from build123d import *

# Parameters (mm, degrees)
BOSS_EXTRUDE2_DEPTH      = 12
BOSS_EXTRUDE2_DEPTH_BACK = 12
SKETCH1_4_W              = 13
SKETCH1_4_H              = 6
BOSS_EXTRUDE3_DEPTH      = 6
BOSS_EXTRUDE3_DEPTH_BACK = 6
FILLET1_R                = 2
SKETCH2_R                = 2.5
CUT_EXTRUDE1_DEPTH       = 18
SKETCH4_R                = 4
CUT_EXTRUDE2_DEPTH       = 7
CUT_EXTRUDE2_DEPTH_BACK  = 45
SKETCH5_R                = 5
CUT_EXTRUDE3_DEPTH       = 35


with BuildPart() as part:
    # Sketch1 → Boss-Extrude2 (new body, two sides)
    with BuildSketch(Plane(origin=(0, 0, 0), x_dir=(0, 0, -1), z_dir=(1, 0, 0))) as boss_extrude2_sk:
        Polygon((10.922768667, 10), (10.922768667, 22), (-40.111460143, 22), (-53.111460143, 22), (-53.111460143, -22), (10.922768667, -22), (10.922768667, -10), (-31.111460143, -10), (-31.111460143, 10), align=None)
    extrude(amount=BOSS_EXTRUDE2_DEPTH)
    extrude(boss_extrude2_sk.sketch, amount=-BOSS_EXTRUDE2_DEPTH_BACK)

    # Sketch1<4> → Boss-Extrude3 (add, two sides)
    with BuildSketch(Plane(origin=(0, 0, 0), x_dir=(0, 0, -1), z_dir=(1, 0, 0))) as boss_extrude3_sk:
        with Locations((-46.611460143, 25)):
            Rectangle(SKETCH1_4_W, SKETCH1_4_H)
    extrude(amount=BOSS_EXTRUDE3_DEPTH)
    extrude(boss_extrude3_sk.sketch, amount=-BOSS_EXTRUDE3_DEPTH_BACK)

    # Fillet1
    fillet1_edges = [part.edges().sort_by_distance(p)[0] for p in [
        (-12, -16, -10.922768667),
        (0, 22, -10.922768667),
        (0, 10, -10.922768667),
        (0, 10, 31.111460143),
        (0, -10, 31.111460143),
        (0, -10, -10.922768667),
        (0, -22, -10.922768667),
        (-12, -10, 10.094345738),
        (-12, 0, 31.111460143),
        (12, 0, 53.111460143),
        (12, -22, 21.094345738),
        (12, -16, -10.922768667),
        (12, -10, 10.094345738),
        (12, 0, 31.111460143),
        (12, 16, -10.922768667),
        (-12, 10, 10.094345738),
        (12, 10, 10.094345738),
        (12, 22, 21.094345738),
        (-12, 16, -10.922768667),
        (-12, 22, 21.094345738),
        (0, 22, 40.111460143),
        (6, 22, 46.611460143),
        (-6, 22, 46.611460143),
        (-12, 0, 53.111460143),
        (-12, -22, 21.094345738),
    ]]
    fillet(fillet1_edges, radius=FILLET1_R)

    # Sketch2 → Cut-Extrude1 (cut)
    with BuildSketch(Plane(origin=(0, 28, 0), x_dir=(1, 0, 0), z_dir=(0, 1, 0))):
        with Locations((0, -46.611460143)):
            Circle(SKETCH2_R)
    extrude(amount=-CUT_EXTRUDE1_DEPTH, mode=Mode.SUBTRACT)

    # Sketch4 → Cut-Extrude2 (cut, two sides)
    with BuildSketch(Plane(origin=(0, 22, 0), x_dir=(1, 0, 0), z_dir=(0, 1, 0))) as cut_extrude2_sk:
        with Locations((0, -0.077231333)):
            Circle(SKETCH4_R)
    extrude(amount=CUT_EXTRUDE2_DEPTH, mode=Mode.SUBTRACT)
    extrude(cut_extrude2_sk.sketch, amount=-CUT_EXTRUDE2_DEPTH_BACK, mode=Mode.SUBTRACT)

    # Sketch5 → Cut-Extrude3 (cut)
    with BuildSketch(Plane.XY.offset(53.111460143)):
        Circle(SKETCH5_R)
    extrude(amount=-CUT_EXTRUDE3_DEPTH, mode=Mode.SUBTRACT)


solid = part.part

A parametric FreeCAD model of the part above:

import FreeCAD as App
import Part
import Sketcher
from FreeCAD import Vector


def edges_at(feature, points):
    """Names of the edges that pass closest to the given points."""
    edges = feature.Shape.Edges
    near = lambda p: min(range(len(edges)), key=lambda i: edges[i].distToShape(Part.Vertex(*p))[0])
    return sorted({f"Edge{near(p) + 1}" for p in points})

doc = App.newDocument("Part")
body = doc.addObject("PartDesign::Body", "Body")

# Sketch on YZ plane
sketch1 = body.newObject("Sketcher::SketchObject", "Sketch")
sketch1.AttachmentSupport = (doc.getObject("YZ_Plane"), [""])
sketch1.MapMode = "FlatFace"
sketch1.addGeometry([
    Part.LineSegment(Vector(10, -11, 0), Vector(22, -11, 0)),  # 0
    Part.LineSegment(Vector(22, -11, 0), Vector(22, 53, 0)),  # 1
    Part.LineSegment(Vector(22, 53, 0), Vector(-22, 53, 0)),  # 2
    Part.LineSegment(Vector(-22, 53, 0), Vector(-22, -11, 0)),  # 3
    Part.LineSegment(Vector(-22, -11, 0), Vector(-10, -11, 0)),  # 4
    Part.LineSegment(Vector(-10, -11, 0), Vector(-10, 31, 0)),  # 5
    Part.LineSegment(Vector(-10, 31, 0), Vector(10, 31, 0)),  # 6
    Part.LineSegment(Vector(10, 31, 0), Vector(10, -11, 0)),  # 7
], False)
sketch1.addConstraint([
    Sketcher.Constraint("Coincident", 0, 2, 1, 1),
    Sketcher.Constraint("Coincident", 1, 2, 2, 1),
    Sketcher.Constraint("Coincident", 2, 2, 3, 1),
    Sketcher.Constraint("Coincident", 3, 2, 4, 1),
    Sketcher.Constraint("Coincident", 4, 2, 5, 1),
    Sketcher.Constraint("Coincident", 5, 2, 6, 1),
    Sketcher.Constraint("Coincident", 6, 2, 7, 1),
    Sketcher.Constraint("Coincident", 7, 2, 0, 1),
    Sketcher.Constraint("Horizontal", 0),
    Sketcher.Constraint("Vertical", 1),
    Sketcher.Constraint("Horizontal", 2),
    Sketcher.Constraint("Vertical", 3),
    Sketcher.Constraint("Horizontal", 4),
    Sketcher.Constraint("Vertical", 5),
    Sketcher.Constraint("Horizontal", 6),
    Sketcher.Constraint("Vertical", 7),
    Sketcher.Constraint("Symmetric", 0, 2, 3, 2, -2),
    Sketcher.Constraint("Equal", 0, 4),
    Sketcher.Constraint("DistanceX", 0, 1, 0, 2, 12.0),
    Sketcher.Constraint("DistanceX", 2, 2, 2, 1, 44.0),
    Sketcher.Constraint("DistanceY", 5, 2, 2, 2, 22.0),
    Sketcher.Constraint("DistanceY", 1, 1, 1, 2, 64.034229),
    Sketcher.Constraint("DistanceY", 0, 2, -1, 1, 10.922769),
])
pad1 = body.newObject("PartDesign::Pad", "Pad")
pad1.Profile = sketch1
pad1.Type = "TwoLengths"
pad1.Length = 12
pad1.Length2 = 12

# Sketch on YZ plane
sketch2 = body.newObject("Sketcher::SketchObject", "Sketch001")
sketch2.AttachmentSupport = (doc.getObject("YZ_Plane"), [""])
sketch2.MapMode = "FlatFace"
sketch2.addGeometry([
    Part.LineSegment(Vector(28, 53, 0), Vector(22, 53, 0)),
    Part.LineSegment(Vector(22, 53, 0), Vector(22, 40, 0)),
    Part.LineSegment(Vector(22, 40, 0), Vector(28, 40, 0)),
    Part.LineSegment(Vector(28, 40, 0), Vector(28, 53, 0)),
], False)
sketch2.addConstraint([
    Sketcher.Constraint("Coincident", 0, 2, 1, 1),
    Sketcher.Constraint("Coincident", 1, 2, 2, 1),
    Sketcher.Constraint("Coincident", 2, 2, 3, 1),
    Sketcher.Constraint("Coincident", 3, 2, 0, 1),
    Sketcher.Constraint("Horizontal", 0),
    Sketcher.Constraint("Vertical", 1),
    Sketcher.Constraint("Horizontal", 2),
    Sketcher.Constraint("Vertical", 3),
    Sketcher.Constraint("DistanceX", 0, 2, 0, 1, 6.0),
    Sketcher.Constraint("DistanceY", 1, 2, 1, 1, 13.0),
    Sketcher.Constraint("DistanceX", -1, 1, 0, 2, 22.0),
    Sketcher.Constraint("DistanceY", -1, 1, 0, 2, 53.11146),
])
pad2 = body.newObject("PartDesign::Pad", "Pad001")
pad2.Profile = sketch2
pad2.Type = "TwoLengths"
pad2.Length = 6
pad2.Length2 = 6
doc.recompute()

fillet = body.newObject("PartDesign::Fillet", "Fillet")
fillet.Base = (pad2, edges_at(pad2, [
    (-12, -16, -10.923),
    (0, 22, -10.923),
    (0, 10, -10.923),
    (0, 10, 31.111),
    (0, -10, 31.111),
    (0, -10, -10.923),
    (0, -22, -10.923),
    (-12, -10, 10.094),
    (-12, 0, 31.111),
    (12, 0, 53.111),
    (12, -22, 21.094),
    (12, -16, -10.923),
    (12, -10, 10.094),
    (12, 0, 31.111),
    (12, 16, -10.923),
    (-12, 10, 10.094),
    (12, 10, 10.094),
    (12, 22, 21.094),
    (-12, 16, -10.923),
    (-12, 22, 21.094),
    (0, 22, 40.111),
    (6, 22, 46.611),
    (-6, 22, 46.611),
    (-12, 0, 53.111),
    (-12, -22, 21.094),
]))
fillet.Radius = 2

# Sketch on XZ plane
sketch3 = body.newObject("Sketcher::SketchObject", "Sketch002")
sketch3.AttachmentSupport = (doc.getObject("XZ_Plane"), [""])
sketch3.MapMode = "FlatFace"
sketch3.AttachmentOffset = App.Placement(Vector(0, 0, -28), App.Rotation())
sketch3.addGeometry(Part.Circle(Vector(0, 46.6, 0), Vector(0, 0, 1), 2.5), False)
sketch3.addConstraint([
    Sketcher.Constraint("PointOnObject", 0, 3, -2),
    Sketcher.Constraint("Diameter", 0, 5.0),
    Sketcher.Constraint("DistanceY", -1, 1, 0, 3, 46.61146),
])
pocket1 = body.newObject("PartDesign::Pocket", "Pocket")
pocket1.Profile = sketch3
pocket1.Length = 18
pocket1.Reversed = True

# Sketch on XZ plane
sketch4 = body.newObject("Sketcher::SketchObject", "Sketch003")
sketch4.AttachmentSupport = (doc.getObject("XZ_Plane"), [""])
sketch4.MapMode = "FlatFace"
sketch4.AttachmentOffset = App.Placement(Vector(0, 0, -22), App.Rotation())
sketch4.addGeometry(Part.Circle(Vector(0, 0.1, 0), Vector(0, 0, 1), 4), False)
sketch4.addConstraint([
    Sketcher.Constraint("PointOnObject", 0, 3, -2),
    Sketcher.Constraint("Diameter", 0, 8.0),
    Sketcher.Constraint("DistanceY", -1, 1, 0, 3, 0.077231),
])
pocket2 = body.newObject("PartDesign::Pocket", "Pocket001")
pocket2.Profile = sketch4
pocket2.Type = "ThroughAll"
pocket2.Midplane = True

# Sketch on XY plane
sketch5 = body.newObject("Sketcher::SketchObject", "Sketch004")
sketch5.AttachmentSupport = (doc.getObject("XY_Plane"), [""])
sketch5.MapMode = "FlatFace"
sketch5.AttachmentOffset = App.Placement(Vector(0, 0, 53.11146), App.Rotation())
sketch5.addGeometry(Part.Circle(Vector(0, 0, 0), Vector(0, 0, 1), 5), False)
sketch5.addConstraint([
    Sketcher.Constraint("Coincident", 0, 3, -1, 1),
    Sketcher.Constraint("Diameter", 0, 10.0),
])
pocket3 = body.newObject("PartDesign::Pocket", "Pocket002")
pocket3.Profile = sketch5
pocket3.Length = 35

doc.recompute()
